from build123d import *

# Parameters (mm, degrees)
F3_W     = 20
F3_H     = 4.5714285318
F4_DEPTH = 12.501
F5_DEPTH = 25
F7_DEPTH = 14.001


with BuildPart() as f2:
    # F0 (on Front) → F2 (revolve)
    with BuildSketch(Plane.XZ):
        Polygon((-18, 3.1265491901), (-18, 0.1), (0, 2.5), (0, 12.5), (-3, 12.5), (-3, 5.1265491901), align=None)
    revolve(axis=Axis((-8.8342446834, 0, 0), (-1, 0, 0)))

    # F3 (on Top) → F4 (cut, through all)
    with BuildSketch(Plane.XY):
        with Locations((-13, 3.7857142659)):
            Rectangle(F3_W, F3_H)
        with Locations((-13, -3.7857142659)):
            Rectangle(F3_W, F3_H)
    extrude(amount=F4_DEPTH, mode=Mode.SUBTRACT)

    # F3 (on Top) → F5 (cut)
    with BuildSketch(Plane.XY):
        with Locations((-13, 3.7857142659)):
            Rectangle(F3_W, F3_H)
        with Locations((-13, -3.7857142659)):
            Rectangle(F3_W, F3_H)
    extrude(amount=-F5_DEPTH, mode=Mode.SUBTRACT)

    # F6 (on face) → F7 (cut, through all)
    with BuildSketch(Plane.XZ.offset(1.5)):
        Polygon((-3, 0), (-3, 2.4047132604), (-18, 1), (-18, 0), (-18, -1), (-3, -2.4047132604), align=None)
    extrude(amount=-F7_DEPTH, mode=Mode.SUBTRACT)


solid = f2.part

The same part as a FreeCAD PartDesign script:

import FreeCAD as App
import Part
import Sketcher
from FreeCAD import Vector
Q = App.Units.Quantity

doc = App.newDocument("Part")
body = doc.addObject("PartDesign::Body", "Body")

sketch1 = body.newObject("Sketcher::SketchObject", "Sketch")
sketch1.AttachmentSupport = (doc.getObject("XZ_Plane"), [""])
sketch1.MapMode = "FlatFace"
sketch1.addGeometry(Part.LineSegment(Vector(-18, 3.126549, 0), Vector(-18, 0.1, 0)), False)
sketch1.addGeometry(Part.LineSegment(Vector(-18, 0.1, 0), Vector(0, 2.5, 0)), False)
sketch1.addGeometry(Part.LineSegment(Vector(0, 2.5, 0), Vector(0, 12.5, 0)), False)
sketch1.addGeometry(Part.LineSegment(Vector(0, 12.5, 0), Vector(-3, 12.5, 0)), False)
sketch1.addGeometry(Part.LineSegment(Vector(-3, 12.5, 0), Vector(-3, 5.126549, 0)), False)
sketch1.addGeometry(Part.LineSegment(Vector(-3, 5.126549, 0), Vector(-18, 3.126549, 0)), False)
sketch1.addConstraint(Sketcher.Constraint("Coincident", 0, 2, 1, 1))
sketch1.addConstraint(Sketcher.Constraint("Coincident", 1, 2, 2, 1))
sketch1.addConstraint(Sketcher.Constraint("Coincident", 2, 2, 3, 1))
sketch1.addConstraint(Sketcher.Constraint("Coincident", 3, 2, 4, 1))
sketch1.addConstraint(Sketcher.Constraint("Coincident", 4, 2, 5, 1))
sketch1.addConstraint(Sketcher.Constraint("Coincident", 5, 2, 0, 1))
sketch1.addConstraint(Sketcher.Constraint("Vertical", 0))
sketch1.addConstraint(Sketcher.Constraint("Vertical", 2))
sketch1.addConstraint(Sketcher.Constraint("Horizontal", 3))
sketch1.addConstraint(Sketcher.Constraint("Vertical", 4))
sketch1.addConstraint(Sketcher.Constraint("PointOnObject", 1, 2, -2))
sketch1.addConstraint(Sketcher.Constraint("Parallel", 1, 5))
sketch1.addConstraint(Sketcher.Constraint("DistanceX", 3, 2, 3, 1, Q("3 mm")))
sketch1.addConstraint(Sketcher.Constraint("DistanceY", 2, 1, 2, 2, Q("10 mm")))
sketch1.addConstraint(Sketcher.Constraint("DistanceX", 0, 2, -1, 1, Q("18 mm")))
sketch1.addConstraint(Sketcher.Constraint("DistanceY", 5, 2, 4, 2, Q("2 mm")))
sketch1.addConstraint(Sketcher.Constraint("DistanceY", -1, 1, 0, 2, Q("0.1 mm")))
sketch1.addConstraint(Sketcher.Constraint("DistanceY", 0, 2, 0, 1, Q("3.026549 mm")))
revolution = body.newObject("PartDesign::Revolution", "Revolution")
revolution.Profile = sketch1
revolution.ReferenceAxis = (sketch1, ["H_Axis"])
revolution.Angle = 360

sketch2 = body.newObject("Sketcher::SketchObject", "Sketch001")
sketch2.AttachmentSupport = (doc.getObject("XY_Plane"), [""])
sketch2.MapMode = "FlatFace"
sketch2.addGeometry(Part.LineSegment(Vector(-23, 6.071429, 0), Vector(-23, 1.5, 0)), False)
sketch2.addGeometry(Part.LineSegment(Vector(-23, 1.5, 0), Vector(-3, 1.5, 0)), False)
sketch2.addGeometry(Part.LineSegment(Vector(-3, 1.5, 0), Vector(-3, 6.071429, 0)), False)
sketch2.addGeometry(Part.LineSegment(Vector(-3, 6.071429, 0), Vector(-23, 6.071429, 0)), False)
sketch2.addGeometry(Part.LineSegment(Vector(-23, -1.5, 0), Vector(-23, -6.071429, 0)), False)
sketch2.addGeometry(Part.LineSegment(Vector(-23, -6.071429, 0), Vector(-3, -6.071429, 0)), False)
sketch2.addGeometry(Part.LineSegment(Vector(-3, -6.071429, 0), Vector(-3, -1.5, 0)), False)
sketch2.addGeometry(Part.LineSegment(Vector(-3, -1.5, 0), Vector(-23, -1.5, 0)), False)
sketch2.addConstraint(Sketcher.Constraint("Coincident", 0, 2, 1, 1))
sketch2.addConstraint(Sketcher.Constraint("Coincident", 1, 2, 2, 1))
sketch2.addConstraint(Sketcher.Constraint("Coincident", 2, 2, 3, 1))
sketch2.addConstraint(Sketcher.Constraint("Coincident", 3, 2, 0, 1))
sketch2.addConstraint(Sketcher.Constraint("Coincident", 4, 2, 5, 1))
sketch2.addConstraint(Sketcher.Constraint("Coincident", 5, 2, 6, 1))
sketch2.addConstraint(Sketcher.Constraint("Coincident", 6, 2, 7, 1))
sketch2.addConstraint(Sketcher.Constraint("Coincident", 7, 2, 4, 1))
sketch2.addConstraint(Sketcher.Constraint("Vertical", 0))
sketch2.addConstraint(Sketcher.Constraint("Horizontal", 1))
sketch2.addConstraint(Sketcher.Constraint("Vertical", 2))
sketch2.addConstraint(Sketcher.Constraint("Horizontal", 3))
sketch2.addConstraint(Sketcher.Constraint("Vertical", 4))
sketch2.addConstraint(Sketcher.Constraint("Horizontal", 5))
sketch2.addConstraint(Sketcher.Constraint("Vertical", 6))
sketch2.addConstraint(Sketcher.Constraint("Horizontal", 7))
sketch2.addConstraint(Sketcher.Constraint("Symmetric", 3, 2, 4, 2, -1))
sketch2.addConstraint(Sketcher.Constraint("Symmetric", 1, 2, 6, 2, -1))
sketch2.addConstraint(Sketcher.Constraint("DistanceX", 1, 1, 1, 2, Q("20 mm")))
sketch2.addConstraint(Sketcher.Constraint("DistanceX", 0, 2, -1, 1, Q("23 mm")))
sketch2.addConstraint(Sketcher.Constraint("DistanceY", 6, 2, 1, 2, Q("3 mm")))
sketch2.addConstraint(Sketcher.Constraint("DistanceY", 0, 2, 0, 1, Q("4.571429 mm")))
pocket1 = body.newObject("PartDesign::Pocket", "Pocket")
pocket1.Profile = sketch2
pocket1.Type = "ThroughAll"
pocket1.Reversed = True

sketch3 = body.newObject("Sketcher::SketchObject", "Sketch002")
sketch3.AttachmentSupport = (doc.getObject("XY_Plane"), [""])
sketch3.MapMode = "FlatFace"
sketch3.addGeometry(Part.LineSegment(Vector(-23, 6.071429, 0), Vector(-23, 1.5, 0)), False)
sketch3.addGeometry(Part.LineSegment(Vector(-23, 1.5, 0), Vector(-3, 1.5, 0)), False)
sketch3.addGeometry(Part.LineSegment(Vector(-3, 1.5, 0), Vector(-3, 6.071429, 0)), False)
sketch3.addGeometry(Part.LineSegment(Vector(-3, 6.071429, 0), Vector(-23, 6.071429, 0)), False)
sketch3.addGeometry(Part.LineSegment(Vector(-23, -1.5, 0), Vector(-23, -6.071429, 0)), False)
sketch3.addGeometry(Part.LineSegment(Vector(-23, -6.071429, 0), Vector(-3, -6.071429, 0)), False)
sketch3.addGeometry(Part.LineSegment(Vector(-3, -6.071429, 0), Vector(-3, -1.5, 0)), False)
sketch3.addGeometry(Part.LineSegment(Vector(-3, -1.5, 0), Vector(-23, -1.5, 0)), False)
sketch3.addConstraint(Sketcher.Constraint("Coincident", 0, 2, 1, 1))
sketch3.addConstraint(Sketcher.Constraint("Coincident", 1, 2, 2, 1))
sketch3.addConstraint(Sketcher.Constraint("Coincident", 2, 2, 3, 1))
sketch3.addConstraint(Sketcher.Constraint("Coincident", 3, 2, 0, 1))
sketch3.addConstraint(Sketcher.Constraint("Coincident", 4, 2, 5, 1))
sketch3.addConstraint(Sketcher.Constraint("Coincident", 5, 2, 6, 1))
sketch3.addConstraint(Sketcher.Constraint("Coincident", 6, 2, 7, 1))
sketch3.addConstraint(Sketcher.Constraint("Coincident", 7, 2, 4, 1))
sketch3.addConstraint(Sketcher.Constraint("Vertical", 0))
sketch3.addConstraint(Sketcher.Constraint("Horizontal", 1))
sketch3.addConstraint(Sketcher.Constraint("Vertical", 2))
sketch3.addConstraint(Sketcher.Constraint("Horizontal", 3))
sketch3.addConstraint(Sketcher.Constraint("Vertical", 4))
sketch3.addConstraint(Sketcher.Constraint("Horizontal", 5))
sketch3.addConstraint(Sketcher.Constraint("Vertical", 6))
sketch3.addConstraint(Sketcher.Constraint("Horizontal", 7))
sketch3.addConstraint(Sketcher.Constraint("Symmetric", 3, 2, 4, 2, -1))
sketch3.addConstraint(Sketcher.Constraint("Symmetric", 1, 2, 6, 2, -1))
sketch3.addConstraint(Sketcher.Constraint("DistanceX", 1, 1, 1, 2, Q("20 mm")))
sketch3.addConstraint(Sketcher.Constraint("DistanceX", 0, 2, -1, 1, Q("23 mm")))
sketch3.addConstraint(Sketcher.Constraint("DistanceY", 6, 2, 1, 2, Q("3 mm")))
sketch3.addConstraint(Sketcher.Constraint("DistanceY", 0, 2, 0, 1, Q("4.571429 mm")))
pocket2 = body.newObject("PartDesign::Pocket", "Pocket001")
pocket2.Profile = sketch3
pocket2.Length = 25

sketch4 = body.newObject("Sketcher::SketchObject", "Sketch003")
sketch4.AttachmentSupport = (doc.getObject("XZ_Plane"), [""])
sketch4.MapMode = "FlatFace"
sketch4.AttachmentOffset = App.Placement(Vector(0, 0, 1.5), App.Rotation())
sketch4.addGeometry(Part.LineSegment(Vector(-3, 2.404713, 0), Vector(-18, 1, 0)), False)
sketch4.addGeometry(Part.LineSegment(Vector(-18, 1, 0), Vector(-18, -1, 0)), False)
sketch4.addGeometry(Part.LineSegment(Vector(-18, -1, 0), Vector(-3, -2.404713, 0)), False)
sketch4.addGeometry(Part.LineSegment(Vector(-3, -2.404713, 0), Vector(-3, 2.404713, 0)), False)
sketch4.addConstraint(Sketcher.Constraint("Coincident", 0, 2, 1, 1))
sketch4.addConstraint(Sketcher.Constraint("Coincident", 1, 2, 2, 1))
sketch4.addConstraint(Sketcher.Constraint("Coincident", 2, 2, 3, 1))
sketch4.addConstraint(Sketcher.Constraint("Coincident", 3, 2, 0, 1))
sketch4.addConstraint(Sketcher.Constraint("Vertical", 1))
sketch4.addConstraint(Sketcher.Constraint("Vertical", 3))
sketch4.addConstraint(Sketcher.Constraint("Equal", 0, 2))
sketch4.addConstraint(Sketcher.Constraint("DistanceY", 1, 2, 1, 1, Q("2 mm")))
sketch4.addConstraint(Sketcher.Constraint("DistanceX", 0, 2, -1, 1, Q("18 mm")))
sketch4.addConstraint(Sketcher.Constraint("DistanceY", -1, 1, 0, 2, Q("1 mm")))
sketch4.addConstraint(Sketcher.Constraint("DistanceX", 2, 2, -1, 1, Q("3 mm")))
sketch4.addConstraint(Sketcher.Constraint("Angle", 0, Q("-174.649994 deg")))
pocket3 = body.newObject("PartDesign::Pocket", "Pocket002")
pocket3.Profile = sketch4
pocket3.Type = "ThroughAll"

doc.recompute()
